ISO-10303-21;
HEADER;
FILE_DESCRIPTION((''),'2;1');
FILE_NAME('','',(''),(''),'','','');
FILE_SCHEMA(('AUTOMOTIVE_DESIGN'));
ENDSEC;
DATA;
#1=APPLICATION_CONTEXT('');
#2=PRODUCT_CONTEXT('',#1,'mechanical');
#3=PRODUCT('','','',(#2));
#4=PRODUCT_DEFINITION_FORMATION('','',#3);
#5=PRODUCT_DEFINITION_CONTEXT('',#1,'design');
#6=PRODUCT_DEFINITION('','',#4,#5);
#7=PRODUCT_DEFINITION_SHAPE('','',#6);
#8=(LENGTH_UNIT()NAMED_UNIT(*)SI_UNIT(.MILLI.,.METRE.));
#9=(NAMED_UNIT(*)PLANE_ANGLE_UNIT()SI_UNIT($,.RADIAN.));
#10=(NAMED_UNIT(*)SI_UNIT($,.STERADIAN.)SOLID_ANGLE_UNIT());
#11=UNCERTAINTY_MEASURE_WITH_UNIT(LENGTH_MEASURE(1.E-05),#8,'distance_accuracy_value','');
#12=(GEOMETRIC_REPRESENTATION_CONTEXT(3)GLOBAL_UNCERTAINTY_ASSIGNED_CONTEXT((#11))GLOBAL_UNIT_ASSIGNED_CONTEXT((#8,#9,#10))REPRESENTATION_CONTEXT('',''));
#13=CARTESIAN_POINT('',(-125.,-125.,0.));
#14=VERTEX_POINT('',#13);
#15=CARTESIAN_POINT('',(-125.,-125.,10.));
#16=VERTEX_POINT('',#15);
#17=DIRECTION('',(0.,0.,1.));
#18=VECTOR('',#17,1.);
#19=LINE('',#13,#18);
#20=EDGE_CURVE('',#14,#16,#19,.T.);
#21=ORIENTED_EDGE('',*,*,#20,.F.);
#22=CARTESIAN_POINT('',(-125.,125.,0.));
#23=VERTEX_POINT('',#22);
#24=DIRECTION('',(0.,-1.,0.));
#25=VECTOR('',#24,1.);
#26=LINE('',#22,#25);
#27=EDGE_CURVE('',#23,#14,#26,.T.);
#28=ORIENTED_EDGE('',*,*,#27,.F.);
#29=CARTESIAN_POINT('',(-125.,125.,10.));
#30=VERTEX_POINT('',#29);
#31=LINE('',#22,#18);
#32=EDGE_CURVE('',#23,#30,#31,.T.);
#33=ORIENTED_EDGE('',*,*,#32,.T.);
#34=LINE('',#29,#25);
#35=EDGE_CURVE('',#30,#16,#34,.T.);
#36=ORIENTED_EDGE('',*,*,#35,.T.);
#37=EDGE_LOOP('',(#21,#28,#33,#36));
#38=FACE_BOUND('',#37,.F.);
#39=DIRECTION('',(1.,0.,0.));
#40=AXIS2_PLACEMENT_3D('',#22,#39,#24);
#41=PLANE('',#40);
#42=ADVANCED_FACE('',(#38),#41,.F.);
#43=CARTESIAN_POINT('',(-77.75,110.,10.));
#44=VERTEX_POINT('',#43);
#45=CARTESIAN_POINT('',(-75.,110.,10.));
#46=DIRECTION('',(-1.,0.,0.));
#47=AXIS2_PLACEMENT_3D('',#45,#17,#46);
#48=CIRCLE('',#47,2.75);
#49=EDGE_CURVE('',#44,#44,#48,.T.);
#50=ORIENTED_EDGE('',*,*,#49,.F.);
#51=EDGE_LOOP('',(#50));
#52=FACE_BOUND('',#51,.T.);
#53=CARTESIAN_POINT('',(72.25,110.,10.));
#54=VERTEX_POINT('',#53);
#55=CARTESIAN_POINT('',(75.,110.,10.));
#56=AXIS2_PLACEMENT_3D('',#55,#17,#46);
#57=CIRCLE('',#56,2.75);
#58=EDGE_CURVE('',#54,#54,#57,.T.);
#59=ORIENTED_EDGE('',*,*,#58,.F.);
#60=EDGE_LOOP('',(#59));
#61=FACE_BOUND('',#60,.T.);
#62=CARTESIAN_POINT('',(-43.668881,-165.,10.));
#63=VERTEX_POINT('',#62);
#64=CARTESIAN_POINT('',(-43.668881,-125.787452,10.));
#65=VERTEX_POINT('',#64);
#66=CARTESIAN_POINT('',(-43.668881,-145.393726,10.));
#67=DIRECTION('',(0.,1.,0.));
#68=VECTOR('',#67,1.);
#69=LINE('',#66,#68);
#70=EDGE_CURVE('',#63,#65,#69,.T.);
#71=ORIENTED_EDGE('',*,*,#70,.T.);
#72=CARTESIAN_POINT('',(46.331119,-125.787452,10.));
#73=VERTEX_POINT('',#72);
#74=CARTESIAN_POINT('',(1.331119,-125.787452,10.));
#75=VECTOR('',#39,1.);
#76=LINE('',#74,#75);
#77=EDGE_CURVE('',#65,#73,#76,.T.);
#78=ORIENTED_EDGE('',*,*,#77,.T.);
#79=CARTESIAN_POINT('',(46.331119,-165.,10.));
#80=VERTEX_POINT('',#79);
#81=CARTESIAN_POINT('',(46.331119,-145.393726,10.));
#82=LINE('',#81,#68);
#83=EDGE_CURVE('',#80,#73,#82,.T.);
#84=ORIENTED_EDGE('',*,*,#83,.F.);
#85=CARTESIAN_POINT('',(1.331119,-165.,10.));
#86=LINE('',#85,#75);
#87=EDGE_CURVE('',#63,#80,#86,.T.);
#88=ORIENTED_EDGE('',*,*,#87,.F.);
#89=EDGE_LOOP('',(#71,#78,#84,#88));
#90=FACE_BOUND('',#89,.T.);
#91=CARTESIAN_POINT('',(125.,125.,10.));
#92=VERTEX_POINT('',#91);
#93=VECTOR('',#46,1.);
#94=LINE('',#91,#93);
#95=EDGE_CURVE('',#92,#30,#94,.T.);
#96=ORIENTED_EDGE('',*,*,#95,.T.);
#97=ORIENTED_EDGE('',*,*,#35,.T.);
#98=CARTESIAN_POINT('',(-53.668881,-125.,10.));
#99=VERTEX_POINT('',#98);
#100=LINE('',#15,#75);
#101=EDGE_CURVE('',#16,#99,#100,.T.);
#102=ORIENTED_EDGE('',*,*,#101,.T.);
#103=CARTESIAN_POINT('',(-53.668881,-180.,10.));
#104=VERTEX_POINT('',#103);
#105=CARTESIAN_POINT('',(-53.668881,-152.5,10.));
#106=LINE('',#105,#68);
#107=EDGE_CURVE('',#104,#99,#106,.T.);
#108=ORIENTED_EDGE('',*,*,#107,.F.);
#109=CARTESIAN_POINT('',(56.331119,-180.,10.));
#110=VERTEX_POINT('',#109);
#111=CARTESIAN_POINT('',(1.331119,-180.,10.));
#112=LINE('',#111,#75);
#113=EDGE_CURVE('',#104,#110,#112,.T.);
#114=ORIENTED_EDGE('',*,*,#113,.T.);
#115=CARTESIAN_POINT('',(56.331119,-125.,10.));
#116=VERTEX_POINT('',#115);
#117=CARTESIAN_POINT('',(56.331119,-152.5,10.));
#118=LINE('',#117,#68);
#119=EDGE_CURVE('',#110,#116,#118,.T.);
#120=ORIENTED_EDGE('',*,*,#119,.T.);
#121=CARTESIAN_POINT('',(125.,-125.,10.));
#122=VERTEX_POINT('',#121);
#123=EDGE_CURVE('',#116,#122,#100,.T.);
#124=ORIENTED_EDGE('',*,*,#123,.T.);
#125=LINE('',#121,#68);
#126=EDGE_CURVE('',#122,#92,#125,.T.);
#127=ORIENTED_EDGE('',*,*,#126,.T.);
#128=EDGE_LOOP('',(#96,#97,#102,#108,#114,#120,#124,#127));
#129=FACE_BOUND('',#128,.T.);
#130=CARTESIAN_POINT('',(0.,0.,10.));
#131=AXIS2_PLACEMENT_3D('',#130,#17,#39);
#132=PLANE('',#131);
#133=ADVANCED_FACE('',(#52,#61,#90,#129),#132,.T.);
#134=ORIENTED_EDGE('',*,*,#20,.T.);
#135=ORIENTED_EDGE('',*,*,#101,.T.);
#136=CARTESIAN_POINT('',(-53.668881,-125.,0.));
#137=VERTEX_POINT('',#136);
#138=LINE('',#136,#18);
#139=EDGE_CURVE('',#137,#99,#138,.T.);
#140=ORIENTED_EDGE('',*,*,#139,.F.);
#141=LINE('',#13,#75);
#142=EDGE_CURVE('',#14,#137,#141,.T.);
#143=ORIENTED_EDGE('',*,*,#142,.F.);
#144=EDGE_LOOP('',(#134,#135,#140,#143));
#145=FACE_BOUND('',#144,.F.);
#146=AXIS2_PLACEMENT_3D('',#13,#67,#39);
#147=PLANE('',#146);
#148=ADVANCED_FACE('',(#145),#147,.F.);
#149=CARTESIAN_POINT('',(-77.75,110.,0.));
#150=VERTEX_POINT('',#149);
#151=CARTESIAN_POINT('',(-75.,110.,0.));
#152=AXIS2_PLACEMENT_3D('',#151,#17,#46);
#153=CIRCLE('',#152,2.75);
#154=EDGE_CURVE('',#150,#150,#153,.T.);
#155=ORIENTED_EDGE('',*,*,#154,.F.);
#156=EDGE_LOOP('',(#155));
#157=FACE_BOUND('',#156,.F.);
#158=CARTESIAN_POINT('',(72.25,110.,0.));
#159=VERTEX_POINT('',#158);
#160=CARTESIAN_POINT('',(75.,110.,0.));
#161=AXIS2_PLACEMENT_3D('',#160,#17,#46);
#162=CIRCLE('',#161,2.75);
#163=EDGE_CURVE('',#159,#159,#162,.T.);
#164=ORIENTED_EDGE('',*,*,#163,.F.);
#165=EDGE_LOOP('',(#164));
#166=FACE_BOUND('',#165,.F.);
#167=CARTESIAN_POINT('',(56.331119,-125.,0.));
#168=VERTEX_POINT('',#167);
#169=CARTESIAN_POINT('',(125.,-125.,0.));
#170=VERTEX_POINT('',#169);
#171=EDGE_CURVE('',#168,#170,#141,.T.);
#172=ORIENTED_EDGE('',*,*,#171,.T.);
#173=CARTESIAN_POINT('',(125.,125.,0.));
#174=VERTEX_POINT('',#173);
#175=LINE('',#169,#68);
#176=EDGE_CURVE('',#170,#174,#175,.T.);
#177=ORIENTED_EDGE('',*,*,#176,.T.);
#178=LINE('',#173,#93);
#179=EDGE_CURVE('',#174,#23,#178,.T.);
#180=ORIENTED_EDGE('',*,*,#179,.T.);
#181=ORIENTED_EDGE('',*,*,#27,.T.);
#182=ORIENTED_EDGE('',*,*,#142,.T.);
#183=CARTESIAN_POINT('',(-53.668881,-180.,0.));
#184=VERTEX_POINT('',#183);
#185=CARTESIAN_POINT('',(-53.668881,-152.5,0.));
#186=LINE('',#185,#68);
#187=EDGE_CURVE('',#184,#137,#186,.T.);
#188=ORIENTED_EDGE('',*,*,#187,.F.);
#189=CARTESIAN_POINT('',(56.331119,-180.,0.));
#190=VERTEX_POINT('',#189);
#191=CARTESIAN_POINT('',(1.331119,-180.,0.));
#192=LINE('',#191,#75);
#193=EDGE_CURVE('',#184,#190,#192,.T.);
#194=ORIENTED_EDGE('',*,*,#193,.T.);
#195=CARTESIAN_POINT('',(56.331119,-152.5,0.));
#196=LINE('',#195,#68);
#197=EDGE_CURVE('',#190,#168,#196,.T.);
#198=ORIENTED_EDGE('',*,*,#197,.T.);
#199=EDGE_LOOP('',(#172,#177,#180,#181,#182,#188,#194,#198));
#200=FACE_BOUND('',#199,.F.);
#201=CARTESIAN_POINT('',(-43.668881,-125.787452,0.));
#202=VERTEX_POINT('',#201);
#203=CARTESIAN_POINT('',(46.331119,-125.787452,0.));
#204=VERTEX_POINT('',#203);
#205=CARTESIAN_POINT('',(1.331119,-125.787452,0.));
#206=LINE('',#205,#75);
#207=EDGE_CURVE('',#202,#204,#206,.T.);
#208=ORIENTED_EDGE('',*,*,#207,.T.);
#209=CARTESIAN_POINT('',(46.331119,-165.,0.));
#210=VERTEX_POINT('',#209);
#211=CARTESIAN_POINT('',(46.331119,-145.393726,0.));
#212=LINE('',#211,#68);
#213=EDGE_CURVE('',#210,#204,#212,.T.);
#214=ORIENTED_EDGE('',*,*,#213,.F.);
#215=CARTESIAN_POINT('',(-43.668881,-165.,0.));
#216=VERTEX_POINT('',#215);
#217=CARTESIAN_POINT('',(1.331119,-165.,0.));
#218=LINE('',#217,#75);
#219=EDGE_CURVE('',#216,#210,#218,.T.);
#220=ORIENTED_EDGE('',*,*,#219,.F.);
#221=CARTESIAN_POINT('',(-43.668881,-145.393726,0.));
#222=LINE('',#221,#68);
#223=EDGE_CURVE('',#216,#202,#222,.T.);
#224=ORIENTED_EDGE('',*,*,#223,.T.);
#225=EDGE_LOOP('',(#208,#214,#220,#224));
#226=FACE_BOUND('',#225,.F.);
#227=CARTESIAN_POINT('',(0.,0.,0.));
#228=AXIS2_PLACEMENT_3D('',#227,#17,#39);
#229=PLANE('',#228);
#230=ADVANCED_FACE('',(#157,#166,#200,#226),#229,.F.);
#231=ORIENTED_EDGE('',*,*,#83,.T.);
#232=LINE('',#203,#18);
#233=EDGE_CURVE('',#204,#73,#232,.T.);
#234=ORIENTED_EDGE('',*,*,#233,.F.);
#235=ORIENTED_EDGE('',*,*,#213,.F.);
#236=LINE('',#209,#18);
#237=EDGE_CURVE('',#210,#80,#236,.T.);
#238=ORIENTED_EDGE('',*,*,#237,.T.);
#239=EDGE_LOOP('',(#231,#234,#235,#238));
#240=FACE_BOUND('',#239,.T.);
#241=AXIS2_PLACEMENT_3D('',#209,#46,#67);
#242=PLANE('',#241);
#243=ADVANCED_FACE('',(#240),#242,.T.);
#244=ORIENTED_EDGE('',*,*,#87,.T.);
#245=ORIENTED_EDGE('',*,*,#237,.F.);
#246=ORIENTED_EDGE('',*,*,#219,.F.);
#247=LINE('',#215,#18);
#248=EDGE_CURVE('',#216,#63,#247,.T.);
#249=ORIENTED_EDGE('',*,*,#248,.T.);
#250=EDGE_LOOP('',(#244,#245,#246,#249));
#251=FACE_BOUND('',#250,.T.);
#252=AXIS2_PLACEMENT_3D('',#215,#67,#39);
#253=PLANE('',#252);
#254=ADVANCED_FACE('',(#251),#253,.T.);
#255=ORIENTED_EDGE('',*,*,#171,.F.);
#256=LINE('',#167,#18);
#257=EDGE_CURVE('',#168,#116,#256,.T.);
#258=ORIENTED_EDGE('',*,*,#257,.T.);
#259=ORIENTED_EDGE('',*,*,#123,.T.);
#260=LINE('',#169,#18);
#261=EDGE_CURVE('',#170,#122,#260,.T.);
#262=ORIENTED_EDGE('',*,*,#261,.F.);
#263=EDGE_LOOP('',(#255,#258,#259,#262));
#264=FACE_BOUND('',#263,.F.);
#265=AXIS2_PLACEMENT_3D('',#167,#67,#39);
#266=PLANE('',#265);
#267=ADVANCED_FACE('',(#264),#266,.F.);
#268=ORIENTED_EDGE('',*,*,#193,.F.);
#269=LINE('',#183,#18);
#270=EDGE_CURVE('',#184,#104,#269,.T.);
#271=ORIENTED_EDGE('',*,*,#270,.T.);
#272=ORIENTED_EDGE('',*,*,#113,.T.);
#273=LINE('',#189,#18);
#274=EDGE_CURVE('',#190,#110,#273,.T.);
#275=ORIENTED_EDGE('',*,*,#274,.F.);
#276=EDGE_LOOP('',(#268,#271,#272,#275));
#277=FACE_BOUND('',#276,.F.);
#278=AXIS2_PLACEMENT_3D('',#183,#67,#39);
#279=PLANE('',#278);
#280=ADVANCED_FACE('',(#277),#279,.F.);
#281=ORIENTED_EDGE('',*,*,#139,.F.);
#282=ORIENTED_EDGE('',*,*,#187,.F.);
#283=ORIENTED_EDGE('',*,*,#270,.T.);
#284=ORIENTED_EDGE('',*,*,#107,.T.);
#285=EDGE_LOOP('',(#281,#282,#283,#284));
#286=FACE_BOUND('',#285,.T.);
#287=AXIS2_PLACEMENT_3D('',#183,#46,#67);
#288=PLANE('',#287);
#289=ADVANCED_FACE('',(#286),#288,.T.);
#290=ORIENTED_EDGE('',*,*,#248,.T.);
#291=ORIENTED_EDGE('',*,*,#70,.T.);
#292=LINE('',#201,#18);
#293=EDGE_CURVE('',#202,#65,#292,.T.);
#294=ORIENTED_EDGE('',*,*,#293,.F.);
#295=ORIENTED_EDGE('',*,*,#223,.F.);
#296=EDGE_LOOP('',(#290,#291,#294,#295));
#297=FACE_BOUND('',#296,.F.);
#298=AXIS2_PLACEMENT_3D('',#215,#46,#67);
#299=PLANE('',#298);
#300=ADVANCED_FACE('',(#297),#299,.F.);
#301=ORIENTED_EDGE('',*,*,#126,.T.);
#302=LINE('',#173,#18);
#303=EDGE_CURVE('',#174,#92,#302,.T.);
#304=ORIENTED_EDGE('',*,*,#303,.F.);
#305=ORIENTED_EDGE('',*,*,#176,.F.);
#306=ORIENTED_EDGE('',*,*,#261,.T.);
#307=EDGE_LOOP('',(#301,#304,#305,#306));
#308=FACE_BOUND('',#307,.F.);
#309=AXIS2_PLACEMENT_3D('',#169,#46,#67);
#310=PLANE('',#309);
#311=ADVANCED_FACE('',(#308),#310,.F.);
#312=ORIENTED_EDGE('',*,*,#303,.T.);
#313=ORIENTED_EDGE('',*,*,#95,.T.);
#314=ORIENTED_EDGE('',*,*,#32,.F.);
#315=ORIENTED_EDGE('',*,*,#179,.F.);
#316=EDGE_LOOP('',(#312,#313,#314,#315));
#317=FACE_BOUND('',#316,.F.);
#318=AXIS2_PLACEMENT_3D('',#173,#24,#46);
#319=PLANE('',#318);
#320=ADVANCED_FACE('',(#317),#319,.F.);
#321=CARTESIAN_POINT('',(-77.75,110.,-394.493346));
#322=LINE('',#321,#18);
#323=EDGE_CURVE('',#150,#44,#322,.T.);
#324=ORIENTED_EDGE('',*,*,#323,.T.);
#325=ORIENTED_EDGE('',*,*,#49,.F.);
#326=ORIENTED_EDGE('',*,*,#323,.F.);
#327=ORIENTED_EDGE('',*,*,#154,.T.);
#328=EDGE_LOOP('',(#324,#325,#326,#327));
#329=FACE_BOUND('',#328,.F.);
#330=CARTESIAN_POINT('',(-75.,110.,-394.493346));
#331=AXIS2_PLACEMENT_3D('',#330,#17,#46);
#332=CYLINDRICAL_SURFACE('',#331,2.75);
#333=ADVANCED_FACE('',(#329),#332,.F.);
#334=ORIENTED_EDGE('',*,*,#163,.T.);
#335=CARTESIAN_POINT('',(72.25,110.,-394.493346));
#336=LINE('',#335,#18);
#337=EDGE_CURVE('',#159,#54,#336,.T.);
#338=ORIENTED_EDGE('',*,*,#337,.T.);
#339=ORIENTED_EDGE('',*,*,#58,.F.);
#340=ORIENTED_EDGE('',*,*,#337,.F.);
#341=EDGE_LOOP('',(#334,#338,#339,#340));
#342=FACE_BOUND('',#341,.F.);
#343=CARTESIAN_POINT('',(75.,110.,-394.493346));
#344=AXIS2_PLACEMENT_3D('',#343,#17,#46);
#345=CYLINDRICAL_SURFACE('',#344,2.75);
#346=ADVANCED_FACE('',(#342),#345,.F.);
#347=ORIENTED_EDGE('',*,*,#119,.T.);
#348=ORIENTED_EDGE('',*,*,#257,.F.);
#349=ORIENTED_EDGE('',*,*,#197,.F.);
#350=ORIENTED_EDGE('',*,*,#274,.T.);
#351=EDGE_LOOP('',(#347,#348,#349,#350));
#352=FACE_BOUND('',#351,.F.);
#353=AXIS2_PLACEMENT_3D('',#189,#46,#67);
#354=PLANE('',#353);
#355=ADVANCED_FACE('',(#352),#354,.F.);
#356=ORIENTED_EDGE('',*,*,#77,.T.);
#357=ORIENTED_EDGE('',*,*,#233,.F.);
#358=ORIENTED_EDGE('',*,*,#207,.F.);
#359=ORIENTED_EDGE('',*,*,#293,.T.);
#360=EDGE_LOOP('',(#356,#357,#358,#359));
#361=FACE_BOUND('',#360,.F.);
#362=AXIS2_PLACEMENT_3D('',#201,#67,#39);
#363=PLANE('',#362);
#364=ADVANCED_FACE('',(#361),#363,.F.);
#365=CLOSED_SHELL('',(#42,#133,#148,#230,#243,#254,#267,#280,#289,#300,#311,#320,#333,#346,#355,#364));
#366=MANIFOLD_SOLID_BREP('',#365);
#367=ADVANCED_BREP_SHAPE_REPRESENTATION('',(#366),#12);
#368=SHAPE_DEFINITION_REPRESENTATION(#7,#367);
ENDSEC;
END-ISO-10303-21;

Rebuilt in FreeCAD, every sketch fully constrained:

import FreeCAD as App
import Part
import Sketcher
from FreeCAD import Vector
Q = App.Units.Quantity

doc = App.newDocument("Part")
params = doc.addObject("Spreadsheet::Sheet", "Params")
for row, (alias, value) in enumerate([
    ("sketch1_width", "250 mm"),
    ("sketch1_width2", "110 mm"),
    ("sketch1_width3", "90 mm"),
    ("sketch1_height", "55 mm"),
    ("pad1_length", "10 mm"),
    ("sketch2_diameter", "5.5 mm"),
    ("hole_diameter", "5.5 mm"),
], start=1):
    params.set(f"A{row}", alias)
    params.set(f"B{row}", "=" + value)
    params.setAlias(f"B{row}", alias)

body = doc.addObject("PartDesign::Body", "Body")

# Sketch on XY plane
sketch1 = body.newObject("Sketcher::SketchObject", "Sketch")
sketch1.AttachmentSupport = (doc.getObject("XY_Plane"), [""])
sketch1.MapMode = "FlatFace"
sketch1.addGeometry([
    Part.LineSegment(Vector(125, -125, 0), Vector(125, 125, 0)),  # 0
    Part.LineSegment(Vector(125, 125, 0), Vector(-125, 125, 0)),  # 1
    Part.LineSegment(Vector(-125, 125, 0), Vector(-125, -125, 0)),  # 2
    Part.LineSegment(Vector(-125, -125, 0), Vector(-54, -125, 0)),  # 3
    Part.LineSegment(Vector(-54, -125, 0), Vector(-54, -180, 0)),  # 4
    Part.LineSegment(Vector(-54, -180, 0), Vector(56, -180, 0)),  # 5
    Part.LineSegment(Vector(56, -180, 0), Vector(56, -125, 0)),  # 6
    Part.LineSegment(Vector(56, -125, 0), Vector(125, -125, 0)),  # 7
    Part.LineSegment(Vector(46, -165, 0), Vector(-44, -165, 0)),  # 8
    Part.LineSegment(Vector(-44, -165, 0), Vector(-44, -126, 0)),  # 9
    Part.LineSegment(Vector(-44, -126, 0), Vector(46, -126, 0)),  # 10
    Part.LineSegment(Vector(46, -126, 0), Vector(46, -165, 0)),  # 11
], False)
sketch1.addConstraint([
    Sketcher.Constraint("Coincident", 0, 2, 1, 1),
    Sketcher.Constraint("Coincident", 1, 2, 2, 1),
    Sketcher.Constraint("Coincident", 2, 2, 3, 1),
    Sketcher.Constraint("Coincident", 3, 2, 4, 1),
    Sketcher.Constraint("Coincident", 4, 2, 5, 1),
    Sketcher.Constraint("Coincident", 5, 2, 6, 1),
    Sketcher.Constraint("Coincident", 6, 2, 7, 1),
    Sketcher.Constraint("Coincident", 7, 2, 0, 1),
    Sketcher.Constraint("Coincident", 8, 2, 9, 1),
    Sketcher.Constraint("Coincident", 9, 2, 10, 1),
    Sketcher.Constraint("Coincident", 10, 2, 11, 1),
    Sketcher.Constraint("Coincident", 11, 2, 8, 1),
    Sketcher.Constraint("Vertical", 0),
    Sketcher.Constraint("Horizontal", 1),
    Sketcher.Constraint("Vertical", 2),
    Sketcher.Constraint("Horizontal", 3),
    Sketcher.Constraint("Vertical", 4),
    Sketcher.Constraint("Horizontal", 5),
    Sketcher.Constraint("Vertical", 6),
    Sketcher.Constraint("Horizontal", 7),
    Sketcher.Constraint("Horizontal", 8),
    Sketcher.Constraint("Vertical", 9),
    Sketcher.Constraint("Horizontal", 10),
    Sketcher.Constraint("Vertical", 11),
    Sketcher.Constraint("Symmetric", 0, 2, 2, 2, -1, 1),
    Sketcher.Constraint("Horizontal", 3, 2, 6, 2),
    Sketcher.Constraint("Equal", 1, 0),
    Sketcher.Constraint("DistanceX", 1, 2, 1, 1, Q("250 mm")),
    Sketcher.Constraint("DistanceX", 5, 1, 5, 2, Q("110 mm")),
    Sketcher.Constraint("DistanceX", 8, 2, 8, 1, Q("90 mm")),
    Sketcher.Constraint("DistanceY", 4, 2, 4, 1, Q("55 mm")),
    Sketcher.Constraint("DistanceY", 8, 2, -1, 1, Q("165 mm")),
    Sketcher.Constraint("DistanceX", 4, 2, 8, 2, Q("10 mm")),
    Sketcher.Constraint("DistanceX", 3, 1, 3, 2, Q("71.331119 mm")),
    Sketcher.Constraint("DistanceY", 9, 1, 9, 2, Q("39.212548 mm")),
])
sketch1.setExpression("Constraints[27]", "Params.sketch1_width")
sketch1.setExpression("Constraints[28]", "Params.sketch1_width2")
sketch1.setExpression("Constraints[29]", "Params.sketch1_width3")
sketch1.setExpression("Constraints[30]", "Params.sketch1_height")
pad1 = body.newObject("PartDesign::Pad", "Pad")
pad1.Profile = sketch1
pad1.setExpression("Length", "Params.pad1_length")

# Sketch on XY plane
sketch2 = body.newObject("Sketcher::SketchObject", "Sketch001")
sketch2.AttachmentSupport = (doc.getObject("XY_Plane"), [""])
sketch2.MapMode = "FlatFace"
sketch2.addGeometry([
    Part.Circle(Vector(-75, 110, 0), Vector(0, 0, 1), 2.8),
    Part.Circle(Vector(75, 110, 0), Vector(0, 0, 1), 2.8),
], False)
sketch2.addConstraint([
    Sketcher.Constraint("Equal", 0, 1),
    Sketcher.Constraint("Symmetric", 0, 3, 1, 3, -2),
    Sketcher.Constraint("Diameter", 0, Q("5.5 mm")),
    Sketcher.Constraint("DistanceX", 0, 3, -1, 1, Q("75 mm")),
    Sketcher.Constraint("DistanceY", -1, 1, 0, 3, Q("110 mm")),
])
sketch2.setExpression("Constraints[2]", "Params.sketch2_diameter")
doc.recompute()
hole = body.newObject("PartDesign::Hole", "Hole")
hole.Profile = sketch2
hole.ThreadType = "None"
hole.setExpression("Diameter", "Params.hole_diameter")
hole.DepthType = "ThroughAll"
hole.Reversed = True

doc.recompute()
